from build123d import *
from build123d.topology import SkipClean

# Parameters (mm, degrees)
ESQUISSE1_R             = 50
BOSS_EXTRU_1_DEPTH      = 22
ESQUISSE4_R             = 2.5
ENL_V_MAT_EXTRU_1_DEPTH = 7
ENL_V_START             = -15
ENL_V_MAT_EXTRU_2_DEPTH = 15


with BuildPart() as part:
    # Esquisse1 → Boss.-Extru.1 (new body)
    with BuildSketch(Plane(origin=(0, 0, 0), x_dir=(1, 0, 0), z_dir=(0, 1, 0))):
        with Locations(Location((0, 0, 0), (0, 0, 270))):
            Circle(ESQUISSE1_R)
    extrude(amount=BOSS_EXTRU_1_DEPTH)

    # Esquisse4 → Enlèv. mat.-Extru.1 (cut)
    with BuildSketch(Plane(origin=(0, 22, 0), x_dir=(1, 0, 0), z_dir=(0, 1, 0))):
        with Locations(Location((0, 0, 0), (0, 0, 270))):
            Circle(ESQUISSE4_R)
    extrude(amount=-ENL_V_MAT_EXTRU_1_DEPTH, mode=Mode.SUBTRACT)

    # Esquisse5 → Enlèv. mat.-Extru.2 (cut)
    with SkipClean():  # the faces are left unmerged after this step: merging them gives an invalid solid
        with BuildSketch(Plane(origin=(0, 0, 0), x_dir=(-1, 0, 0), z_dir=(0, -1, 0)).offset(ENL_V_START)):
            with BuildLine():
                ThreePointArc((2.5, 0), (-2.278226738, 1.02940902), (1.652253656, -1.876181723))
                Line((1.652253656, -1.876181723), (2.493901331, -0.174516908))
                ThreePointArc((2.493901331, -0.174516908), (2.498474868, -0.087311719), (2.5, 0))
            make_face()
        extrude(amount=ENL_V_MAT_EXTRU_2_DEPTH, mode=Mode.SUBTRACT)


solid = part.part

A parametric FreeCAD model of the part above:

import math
import FreeCAD as App
import Part
import Sketcher
from FreeCAD import Vector

doc = App.newDocument("Part")
body = doc.addObject("PartDesign::Body", "Body")

# Sketch on XZ plane
sketch1 = body.newObject("Sketcher::SketchObject", "Sketch")
sketch1.AttachmentSupport = (doc.getObject("XZ_Plane"), [""])
sketch1.MapMode = "FlatFace"
sketch1.addGeometry(Part.Circle(Vector(0, 0, 0), Vector(0, 0, 1), 50), False)
sketch1.addConstraint([
    Sketcher.Constraint("Coincident", 0, 3, -1, 1),
    Sketcher.Constraint("Diameter", 0, 100.0),
])
pad1 = body.newObject("PartDesign::Pad", "Pad")
pad1.Profile = sketch1
pad1.Length = 22
pad1.Reversed = True

# Sketch on XZ plane
sketch2 = body.newObject("Sketcher::SketchObject", "Sketch001")
sketch2.AttachmentSupport = (doc.getObject("XZ_Plane"), [""])
sketch2.MapMode = "FlatFace"
sketch2.AttachmentOffset = App.Placement(Vector(0, 0, -22), App.Rotation())
sketch2.addGeometry(Part.Circle(Vector(0, 0, 0), Vector(0, 0, 1), 2.5), False)
sketch2.addConstraint([
    Sketcher.Constraint("Coincident", 0, 3, -1, 1),
    Sketcher.Constraint("Diameter", 0, 5.0),
])
pocket1 = body.newObject("PartDesign::Pocket", "Pocket")
pocket1.Profile = sketch2
pocket1.Length = 7
pocket1.Reversed = True

# Sketch on XZ plane
sketch3 = body.newObject("Sketcher::SketchObject", "Sketch002")
sketch3.AttachmentSupport = (doc.getObject("XZ_Plane"), [""])
sketch3.MapMode = "FlatFace"
sketch3.AttachmentOffset = App.Placement(Vector(0, 0, -15), App.Rotation())
sketch3.addGeometry([
    Part.ArcOfCircle(Part.Circle(Vector(0, 0, 0), Vector(0, 0, 1), 2.5), math.radians(180), math.radians(491)),
    Part.LineSegment(Vector(-1.65, 1.88, 0), Vector(-2.49, 0.17, 0)),
    Part.ArcOfCircle(Part.Circle(Vector(0, 0, 0), Vector(0, 0, 1), 2.5), math.radians(176), math.radians(180)),
], False)
sketch3.addConstraint([
    Sketcher.Constraint("Coincident", 0, 2, 1, 1),
    Sketcher.Constraint("Coincident", 1, 2, 2, 1),
    Sketcher.Constraint("Tangent", 2, 2, 0, 1),
    Sketcher.Constraint("Coincident", 0, 3, -1, 1),
    Sketcher.Constraint("Equal", 0, 2),
    Sketcher.Constraint("PointOnObject", 2, 2, -1),
    Sketcher.Constraint("Radius", 0, 2.5),
    Sketcher.Constraint("DistanceX", 1, 2, -1, 1, 2.493901),
    Sketcher.Constraint("Distance", 1, 1.898429),
])
pocket2 = body.newObject("PartDesign::Pocket", "Pocket001")
pocket2.Profile = sketch3
pocket2.Length = 15
pocket2.Reversed = True

doc.recompute()
